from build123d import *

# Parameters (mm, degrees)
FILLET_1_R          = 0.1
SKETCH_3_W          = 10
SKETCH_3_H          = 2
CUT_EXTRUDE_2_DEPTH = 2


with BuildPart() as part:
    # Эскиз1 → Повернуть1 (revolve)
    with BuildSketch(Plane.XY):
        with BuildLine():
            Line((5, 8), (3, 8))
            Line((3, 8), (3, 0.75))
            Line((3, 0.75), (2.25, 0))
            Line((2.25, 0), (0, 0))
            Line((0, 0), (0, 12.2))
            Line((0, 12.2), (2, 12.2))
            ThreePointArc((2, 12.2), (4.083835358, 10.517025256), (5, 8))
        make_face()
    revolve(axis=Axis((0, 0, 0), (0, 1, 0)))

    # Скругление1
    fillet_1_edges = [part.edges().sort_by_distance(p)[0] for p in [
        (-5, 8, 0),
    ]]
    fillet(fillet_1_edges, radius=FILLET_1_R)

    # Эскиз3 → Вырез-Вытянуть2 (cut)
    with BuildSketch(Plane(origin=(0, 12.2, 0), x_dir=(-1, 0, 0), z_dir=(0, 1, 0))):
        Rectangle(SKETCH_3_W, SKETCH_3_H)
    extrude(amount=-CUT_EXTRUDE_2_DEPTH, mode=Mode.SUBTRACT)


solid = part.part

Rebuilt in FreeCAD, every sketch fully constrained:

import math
import FreeCAD as App
import Part
import Sketcher
Q = App.Units.Quantity


def edges_at(feature, points):
    """Names of the edges that pass closest to the given points."""
    edges = feature.Shape.Edges
    near = lambda p: min(range(len(edges)), key=lambda i: edges[i].distToShape(Part.Vertex(*p))[0])
    return sorted({f"Edge{near(p) + 1}" for p in points})


def add_polygon(sketch, points):
    """Adds a closed chain of lines whose ends are joined by coincident constraints."""
    first, n = sketch.GeometryCount, len(points)
    for a, b in zip(points, points[1:] + points[:1]):
        sketch.addGeometry(Part.LineSegment(App.Vector(*a, 0), App.Vector(*b, 0)), False)
    for i in range(n):
        sketch.addConstraint(Sketcher.Constraint("Coincident", first + i, 2, first + (i + 1) % n, 1))

doc = App.newDocument("Part")
params = doc.addObject("Spreadsheet::Sheet", "Params")
for row, (alias, value) in enumerate([
    ("sketch1_radius", "5 mm"),
    ("sketch1_width", "2 mm"),
    ("sketch1_height", "12.2 mm"),
    ("sketch1_width2", "2.25 mm"),
    ("revolution_angle", "360 deg"),
    ("fillet_radius", "0.1 mm"),
    ("sketch2_width", "10 mm"),
    ("sketch2_height", "2 mm"),
    ("pocket1_length", "2 mm"),
], start=1):
    params.set(f"A{row}", alias)
    params.set(f"B{row}", "=" + value)
    params.setAlias(f"B{row}", alias)

body = doc.addObject("PartDesign::Body", "Body")

sketch1 = body.newObject("Sketcher::SketchObject", "Sketch")
sketch1.AttachmentSupport = (doc.getObject("XY_Plane"), [""])
sketch1.MapMode = "FlatFace"
sketch1.addGeometry([
    Part.LineSegment(App.Vector(3, 8, 0), App.Vector(5, 8, 0)),
    Part.ArcOfCircle(Part.Circle(App.Vector(0.015168, 7.610834, 0), App.Vector(0, 0, 1), 5), math.radians(4.464026), math.radians(66.61133)),
    Part.LineSegment(App.Vector(2, 12.2, 0), App.Vector(0, 12.2, 0)),
    Part.LineSegment(App.Vector(0, 12.2, 0), App.Vector(0, 0, 0)),
    Part.LineSegment(App.Vector(0, 0, 0), App.Vector(2.25, 0, 0)),
    Part.LineSegment(App.Vector(2.25, 0, 0), App.Vector(3, 0.75, 0)),
    Part.LineSegment(App.Vector(3, 0.75, 0), App.Vector(3, 8, 0)),
], False)
sketch1.addConstraint([
    Sketcher.Constraint("Coincident", 0, 2, 1, 1),
    Sketcher.Constraint("Coincident", 1, 2, 2, 1),
    Sketcher.Constraint("Coincident", 2, 2, 3, 1),
    Sketcher.Constraint("Coincident", 3, 2, 4, 1),
    Sketcher.Constraint("Coincident", 4, 2, 5, 1),
    Sketcher.Constraint("Coincident", 5, 2, 6, 1),
    Sketcher.Constraint("Coincident", 6, 2, 0, 1),
    Sketcher.Constraint("Horizontal", 0),
    Sketcher.Constraint("Horizontal", 2),
    Sketcher.Constraint("Vertical", 3),
    Sketcher.Constraint("Horizontal", 4),
    Sketcher.Constraint("Vertical", 6),
    Sketcher.Constraint("Coincident", 3, 2, -1, 1),
    Sketcher.Constraint("Equal", 0, 2),
    Sketcher.Constraint("Radius", 1, 5.0),
    Sketcher.Constraint("DistanceX", 0, 1, 0, 2, 2.0),
    Sketcher.Constraint("Angle", 5, Q("45 deg")),
    Sketcher.Constraint("DistanceY", 3, 2, 3, 1, 12.2),
    Sketcher.Constraint("DistanceX", -1, 1, 0, 2, 5.0),
    Sketcher.Constraint("DistanceY", -1, 1, 0, 2, 8.0),
    Sketcher.Constraint("DistanceX", 4, 1, 4, 2, 2.25),
])
sketch1.setExpression("Constraints[14]", "Params.sketch1_radius")
sketch1.setExpression("Constraints[15]", "Params.sketch1_width")
sketch1.setExpression("Constraints[17]", "Params.sketch1_height")
sketch1.setExpression("Constraints[20]", "Params.sketch1_width2")
revolution = body.newObject("PartDesign::Revolution", "Revolution")
revolution.Profile = sketch1
revolution.ReferenceAxis = (sketch1, ["V_Axis"])
revolution.setExpression("Angle", "Params.revolution_angle")
doc.recompute()

fillet = body.newObject("PartDesign::Fillet", "Fillet")
fillet.Base = (revolution, edges_at(revolution, [(-5, 8, 0)]))
fillet.setExpression("Radius", "Params.fillet_radius")

sketch2 = body.newObject("Sketcher::SketchObject", "Sketch001")
sketch2.AttachmentSupport = (doc.getObject("XZ_Plane"), [""])
sketch2.MapMode = "FlatFace"
sketch2.AttachmentOffset = App.Placement(App.Vector(0, 0, -12.2), App.Rotation())
add_polygon(sketch2, [(5, 1), (5, -1), (-5, -1), (-5, 1)])
sketch2.addConstraint([
    Sketcher.Constraint("Vertical", 0),
    Sketcher.Constraint("Horizontal", 1),
    Sketcher.Constraint("Vertical", 2),
    Sketcher.Constraint("Horizontal", 3),
    Sketcher.Constraint("Symmetric", 0, 2, 2, 2, -1, 1),
    Sketcher.Constraint("DistanceX", 1, 2, 1, 1, 10.0),
    Sketcher.Constraint("DistanceY", 0, 2, 0, 1, 2.0),
])
sketch2.setExpression("Constraints[9]", "Params.sketch2_width")
sketch2.setExpression("Constraints[10]", "Params.sketch2_height")
pocket1 = body.newObject("PartDesign::Pocket", "Pocket")
pocket1.Profile = sketch2
pocket1.setExpression("Length", "Params.pocket1_length")
pocket1.Reversed = True

doc.recompute()
